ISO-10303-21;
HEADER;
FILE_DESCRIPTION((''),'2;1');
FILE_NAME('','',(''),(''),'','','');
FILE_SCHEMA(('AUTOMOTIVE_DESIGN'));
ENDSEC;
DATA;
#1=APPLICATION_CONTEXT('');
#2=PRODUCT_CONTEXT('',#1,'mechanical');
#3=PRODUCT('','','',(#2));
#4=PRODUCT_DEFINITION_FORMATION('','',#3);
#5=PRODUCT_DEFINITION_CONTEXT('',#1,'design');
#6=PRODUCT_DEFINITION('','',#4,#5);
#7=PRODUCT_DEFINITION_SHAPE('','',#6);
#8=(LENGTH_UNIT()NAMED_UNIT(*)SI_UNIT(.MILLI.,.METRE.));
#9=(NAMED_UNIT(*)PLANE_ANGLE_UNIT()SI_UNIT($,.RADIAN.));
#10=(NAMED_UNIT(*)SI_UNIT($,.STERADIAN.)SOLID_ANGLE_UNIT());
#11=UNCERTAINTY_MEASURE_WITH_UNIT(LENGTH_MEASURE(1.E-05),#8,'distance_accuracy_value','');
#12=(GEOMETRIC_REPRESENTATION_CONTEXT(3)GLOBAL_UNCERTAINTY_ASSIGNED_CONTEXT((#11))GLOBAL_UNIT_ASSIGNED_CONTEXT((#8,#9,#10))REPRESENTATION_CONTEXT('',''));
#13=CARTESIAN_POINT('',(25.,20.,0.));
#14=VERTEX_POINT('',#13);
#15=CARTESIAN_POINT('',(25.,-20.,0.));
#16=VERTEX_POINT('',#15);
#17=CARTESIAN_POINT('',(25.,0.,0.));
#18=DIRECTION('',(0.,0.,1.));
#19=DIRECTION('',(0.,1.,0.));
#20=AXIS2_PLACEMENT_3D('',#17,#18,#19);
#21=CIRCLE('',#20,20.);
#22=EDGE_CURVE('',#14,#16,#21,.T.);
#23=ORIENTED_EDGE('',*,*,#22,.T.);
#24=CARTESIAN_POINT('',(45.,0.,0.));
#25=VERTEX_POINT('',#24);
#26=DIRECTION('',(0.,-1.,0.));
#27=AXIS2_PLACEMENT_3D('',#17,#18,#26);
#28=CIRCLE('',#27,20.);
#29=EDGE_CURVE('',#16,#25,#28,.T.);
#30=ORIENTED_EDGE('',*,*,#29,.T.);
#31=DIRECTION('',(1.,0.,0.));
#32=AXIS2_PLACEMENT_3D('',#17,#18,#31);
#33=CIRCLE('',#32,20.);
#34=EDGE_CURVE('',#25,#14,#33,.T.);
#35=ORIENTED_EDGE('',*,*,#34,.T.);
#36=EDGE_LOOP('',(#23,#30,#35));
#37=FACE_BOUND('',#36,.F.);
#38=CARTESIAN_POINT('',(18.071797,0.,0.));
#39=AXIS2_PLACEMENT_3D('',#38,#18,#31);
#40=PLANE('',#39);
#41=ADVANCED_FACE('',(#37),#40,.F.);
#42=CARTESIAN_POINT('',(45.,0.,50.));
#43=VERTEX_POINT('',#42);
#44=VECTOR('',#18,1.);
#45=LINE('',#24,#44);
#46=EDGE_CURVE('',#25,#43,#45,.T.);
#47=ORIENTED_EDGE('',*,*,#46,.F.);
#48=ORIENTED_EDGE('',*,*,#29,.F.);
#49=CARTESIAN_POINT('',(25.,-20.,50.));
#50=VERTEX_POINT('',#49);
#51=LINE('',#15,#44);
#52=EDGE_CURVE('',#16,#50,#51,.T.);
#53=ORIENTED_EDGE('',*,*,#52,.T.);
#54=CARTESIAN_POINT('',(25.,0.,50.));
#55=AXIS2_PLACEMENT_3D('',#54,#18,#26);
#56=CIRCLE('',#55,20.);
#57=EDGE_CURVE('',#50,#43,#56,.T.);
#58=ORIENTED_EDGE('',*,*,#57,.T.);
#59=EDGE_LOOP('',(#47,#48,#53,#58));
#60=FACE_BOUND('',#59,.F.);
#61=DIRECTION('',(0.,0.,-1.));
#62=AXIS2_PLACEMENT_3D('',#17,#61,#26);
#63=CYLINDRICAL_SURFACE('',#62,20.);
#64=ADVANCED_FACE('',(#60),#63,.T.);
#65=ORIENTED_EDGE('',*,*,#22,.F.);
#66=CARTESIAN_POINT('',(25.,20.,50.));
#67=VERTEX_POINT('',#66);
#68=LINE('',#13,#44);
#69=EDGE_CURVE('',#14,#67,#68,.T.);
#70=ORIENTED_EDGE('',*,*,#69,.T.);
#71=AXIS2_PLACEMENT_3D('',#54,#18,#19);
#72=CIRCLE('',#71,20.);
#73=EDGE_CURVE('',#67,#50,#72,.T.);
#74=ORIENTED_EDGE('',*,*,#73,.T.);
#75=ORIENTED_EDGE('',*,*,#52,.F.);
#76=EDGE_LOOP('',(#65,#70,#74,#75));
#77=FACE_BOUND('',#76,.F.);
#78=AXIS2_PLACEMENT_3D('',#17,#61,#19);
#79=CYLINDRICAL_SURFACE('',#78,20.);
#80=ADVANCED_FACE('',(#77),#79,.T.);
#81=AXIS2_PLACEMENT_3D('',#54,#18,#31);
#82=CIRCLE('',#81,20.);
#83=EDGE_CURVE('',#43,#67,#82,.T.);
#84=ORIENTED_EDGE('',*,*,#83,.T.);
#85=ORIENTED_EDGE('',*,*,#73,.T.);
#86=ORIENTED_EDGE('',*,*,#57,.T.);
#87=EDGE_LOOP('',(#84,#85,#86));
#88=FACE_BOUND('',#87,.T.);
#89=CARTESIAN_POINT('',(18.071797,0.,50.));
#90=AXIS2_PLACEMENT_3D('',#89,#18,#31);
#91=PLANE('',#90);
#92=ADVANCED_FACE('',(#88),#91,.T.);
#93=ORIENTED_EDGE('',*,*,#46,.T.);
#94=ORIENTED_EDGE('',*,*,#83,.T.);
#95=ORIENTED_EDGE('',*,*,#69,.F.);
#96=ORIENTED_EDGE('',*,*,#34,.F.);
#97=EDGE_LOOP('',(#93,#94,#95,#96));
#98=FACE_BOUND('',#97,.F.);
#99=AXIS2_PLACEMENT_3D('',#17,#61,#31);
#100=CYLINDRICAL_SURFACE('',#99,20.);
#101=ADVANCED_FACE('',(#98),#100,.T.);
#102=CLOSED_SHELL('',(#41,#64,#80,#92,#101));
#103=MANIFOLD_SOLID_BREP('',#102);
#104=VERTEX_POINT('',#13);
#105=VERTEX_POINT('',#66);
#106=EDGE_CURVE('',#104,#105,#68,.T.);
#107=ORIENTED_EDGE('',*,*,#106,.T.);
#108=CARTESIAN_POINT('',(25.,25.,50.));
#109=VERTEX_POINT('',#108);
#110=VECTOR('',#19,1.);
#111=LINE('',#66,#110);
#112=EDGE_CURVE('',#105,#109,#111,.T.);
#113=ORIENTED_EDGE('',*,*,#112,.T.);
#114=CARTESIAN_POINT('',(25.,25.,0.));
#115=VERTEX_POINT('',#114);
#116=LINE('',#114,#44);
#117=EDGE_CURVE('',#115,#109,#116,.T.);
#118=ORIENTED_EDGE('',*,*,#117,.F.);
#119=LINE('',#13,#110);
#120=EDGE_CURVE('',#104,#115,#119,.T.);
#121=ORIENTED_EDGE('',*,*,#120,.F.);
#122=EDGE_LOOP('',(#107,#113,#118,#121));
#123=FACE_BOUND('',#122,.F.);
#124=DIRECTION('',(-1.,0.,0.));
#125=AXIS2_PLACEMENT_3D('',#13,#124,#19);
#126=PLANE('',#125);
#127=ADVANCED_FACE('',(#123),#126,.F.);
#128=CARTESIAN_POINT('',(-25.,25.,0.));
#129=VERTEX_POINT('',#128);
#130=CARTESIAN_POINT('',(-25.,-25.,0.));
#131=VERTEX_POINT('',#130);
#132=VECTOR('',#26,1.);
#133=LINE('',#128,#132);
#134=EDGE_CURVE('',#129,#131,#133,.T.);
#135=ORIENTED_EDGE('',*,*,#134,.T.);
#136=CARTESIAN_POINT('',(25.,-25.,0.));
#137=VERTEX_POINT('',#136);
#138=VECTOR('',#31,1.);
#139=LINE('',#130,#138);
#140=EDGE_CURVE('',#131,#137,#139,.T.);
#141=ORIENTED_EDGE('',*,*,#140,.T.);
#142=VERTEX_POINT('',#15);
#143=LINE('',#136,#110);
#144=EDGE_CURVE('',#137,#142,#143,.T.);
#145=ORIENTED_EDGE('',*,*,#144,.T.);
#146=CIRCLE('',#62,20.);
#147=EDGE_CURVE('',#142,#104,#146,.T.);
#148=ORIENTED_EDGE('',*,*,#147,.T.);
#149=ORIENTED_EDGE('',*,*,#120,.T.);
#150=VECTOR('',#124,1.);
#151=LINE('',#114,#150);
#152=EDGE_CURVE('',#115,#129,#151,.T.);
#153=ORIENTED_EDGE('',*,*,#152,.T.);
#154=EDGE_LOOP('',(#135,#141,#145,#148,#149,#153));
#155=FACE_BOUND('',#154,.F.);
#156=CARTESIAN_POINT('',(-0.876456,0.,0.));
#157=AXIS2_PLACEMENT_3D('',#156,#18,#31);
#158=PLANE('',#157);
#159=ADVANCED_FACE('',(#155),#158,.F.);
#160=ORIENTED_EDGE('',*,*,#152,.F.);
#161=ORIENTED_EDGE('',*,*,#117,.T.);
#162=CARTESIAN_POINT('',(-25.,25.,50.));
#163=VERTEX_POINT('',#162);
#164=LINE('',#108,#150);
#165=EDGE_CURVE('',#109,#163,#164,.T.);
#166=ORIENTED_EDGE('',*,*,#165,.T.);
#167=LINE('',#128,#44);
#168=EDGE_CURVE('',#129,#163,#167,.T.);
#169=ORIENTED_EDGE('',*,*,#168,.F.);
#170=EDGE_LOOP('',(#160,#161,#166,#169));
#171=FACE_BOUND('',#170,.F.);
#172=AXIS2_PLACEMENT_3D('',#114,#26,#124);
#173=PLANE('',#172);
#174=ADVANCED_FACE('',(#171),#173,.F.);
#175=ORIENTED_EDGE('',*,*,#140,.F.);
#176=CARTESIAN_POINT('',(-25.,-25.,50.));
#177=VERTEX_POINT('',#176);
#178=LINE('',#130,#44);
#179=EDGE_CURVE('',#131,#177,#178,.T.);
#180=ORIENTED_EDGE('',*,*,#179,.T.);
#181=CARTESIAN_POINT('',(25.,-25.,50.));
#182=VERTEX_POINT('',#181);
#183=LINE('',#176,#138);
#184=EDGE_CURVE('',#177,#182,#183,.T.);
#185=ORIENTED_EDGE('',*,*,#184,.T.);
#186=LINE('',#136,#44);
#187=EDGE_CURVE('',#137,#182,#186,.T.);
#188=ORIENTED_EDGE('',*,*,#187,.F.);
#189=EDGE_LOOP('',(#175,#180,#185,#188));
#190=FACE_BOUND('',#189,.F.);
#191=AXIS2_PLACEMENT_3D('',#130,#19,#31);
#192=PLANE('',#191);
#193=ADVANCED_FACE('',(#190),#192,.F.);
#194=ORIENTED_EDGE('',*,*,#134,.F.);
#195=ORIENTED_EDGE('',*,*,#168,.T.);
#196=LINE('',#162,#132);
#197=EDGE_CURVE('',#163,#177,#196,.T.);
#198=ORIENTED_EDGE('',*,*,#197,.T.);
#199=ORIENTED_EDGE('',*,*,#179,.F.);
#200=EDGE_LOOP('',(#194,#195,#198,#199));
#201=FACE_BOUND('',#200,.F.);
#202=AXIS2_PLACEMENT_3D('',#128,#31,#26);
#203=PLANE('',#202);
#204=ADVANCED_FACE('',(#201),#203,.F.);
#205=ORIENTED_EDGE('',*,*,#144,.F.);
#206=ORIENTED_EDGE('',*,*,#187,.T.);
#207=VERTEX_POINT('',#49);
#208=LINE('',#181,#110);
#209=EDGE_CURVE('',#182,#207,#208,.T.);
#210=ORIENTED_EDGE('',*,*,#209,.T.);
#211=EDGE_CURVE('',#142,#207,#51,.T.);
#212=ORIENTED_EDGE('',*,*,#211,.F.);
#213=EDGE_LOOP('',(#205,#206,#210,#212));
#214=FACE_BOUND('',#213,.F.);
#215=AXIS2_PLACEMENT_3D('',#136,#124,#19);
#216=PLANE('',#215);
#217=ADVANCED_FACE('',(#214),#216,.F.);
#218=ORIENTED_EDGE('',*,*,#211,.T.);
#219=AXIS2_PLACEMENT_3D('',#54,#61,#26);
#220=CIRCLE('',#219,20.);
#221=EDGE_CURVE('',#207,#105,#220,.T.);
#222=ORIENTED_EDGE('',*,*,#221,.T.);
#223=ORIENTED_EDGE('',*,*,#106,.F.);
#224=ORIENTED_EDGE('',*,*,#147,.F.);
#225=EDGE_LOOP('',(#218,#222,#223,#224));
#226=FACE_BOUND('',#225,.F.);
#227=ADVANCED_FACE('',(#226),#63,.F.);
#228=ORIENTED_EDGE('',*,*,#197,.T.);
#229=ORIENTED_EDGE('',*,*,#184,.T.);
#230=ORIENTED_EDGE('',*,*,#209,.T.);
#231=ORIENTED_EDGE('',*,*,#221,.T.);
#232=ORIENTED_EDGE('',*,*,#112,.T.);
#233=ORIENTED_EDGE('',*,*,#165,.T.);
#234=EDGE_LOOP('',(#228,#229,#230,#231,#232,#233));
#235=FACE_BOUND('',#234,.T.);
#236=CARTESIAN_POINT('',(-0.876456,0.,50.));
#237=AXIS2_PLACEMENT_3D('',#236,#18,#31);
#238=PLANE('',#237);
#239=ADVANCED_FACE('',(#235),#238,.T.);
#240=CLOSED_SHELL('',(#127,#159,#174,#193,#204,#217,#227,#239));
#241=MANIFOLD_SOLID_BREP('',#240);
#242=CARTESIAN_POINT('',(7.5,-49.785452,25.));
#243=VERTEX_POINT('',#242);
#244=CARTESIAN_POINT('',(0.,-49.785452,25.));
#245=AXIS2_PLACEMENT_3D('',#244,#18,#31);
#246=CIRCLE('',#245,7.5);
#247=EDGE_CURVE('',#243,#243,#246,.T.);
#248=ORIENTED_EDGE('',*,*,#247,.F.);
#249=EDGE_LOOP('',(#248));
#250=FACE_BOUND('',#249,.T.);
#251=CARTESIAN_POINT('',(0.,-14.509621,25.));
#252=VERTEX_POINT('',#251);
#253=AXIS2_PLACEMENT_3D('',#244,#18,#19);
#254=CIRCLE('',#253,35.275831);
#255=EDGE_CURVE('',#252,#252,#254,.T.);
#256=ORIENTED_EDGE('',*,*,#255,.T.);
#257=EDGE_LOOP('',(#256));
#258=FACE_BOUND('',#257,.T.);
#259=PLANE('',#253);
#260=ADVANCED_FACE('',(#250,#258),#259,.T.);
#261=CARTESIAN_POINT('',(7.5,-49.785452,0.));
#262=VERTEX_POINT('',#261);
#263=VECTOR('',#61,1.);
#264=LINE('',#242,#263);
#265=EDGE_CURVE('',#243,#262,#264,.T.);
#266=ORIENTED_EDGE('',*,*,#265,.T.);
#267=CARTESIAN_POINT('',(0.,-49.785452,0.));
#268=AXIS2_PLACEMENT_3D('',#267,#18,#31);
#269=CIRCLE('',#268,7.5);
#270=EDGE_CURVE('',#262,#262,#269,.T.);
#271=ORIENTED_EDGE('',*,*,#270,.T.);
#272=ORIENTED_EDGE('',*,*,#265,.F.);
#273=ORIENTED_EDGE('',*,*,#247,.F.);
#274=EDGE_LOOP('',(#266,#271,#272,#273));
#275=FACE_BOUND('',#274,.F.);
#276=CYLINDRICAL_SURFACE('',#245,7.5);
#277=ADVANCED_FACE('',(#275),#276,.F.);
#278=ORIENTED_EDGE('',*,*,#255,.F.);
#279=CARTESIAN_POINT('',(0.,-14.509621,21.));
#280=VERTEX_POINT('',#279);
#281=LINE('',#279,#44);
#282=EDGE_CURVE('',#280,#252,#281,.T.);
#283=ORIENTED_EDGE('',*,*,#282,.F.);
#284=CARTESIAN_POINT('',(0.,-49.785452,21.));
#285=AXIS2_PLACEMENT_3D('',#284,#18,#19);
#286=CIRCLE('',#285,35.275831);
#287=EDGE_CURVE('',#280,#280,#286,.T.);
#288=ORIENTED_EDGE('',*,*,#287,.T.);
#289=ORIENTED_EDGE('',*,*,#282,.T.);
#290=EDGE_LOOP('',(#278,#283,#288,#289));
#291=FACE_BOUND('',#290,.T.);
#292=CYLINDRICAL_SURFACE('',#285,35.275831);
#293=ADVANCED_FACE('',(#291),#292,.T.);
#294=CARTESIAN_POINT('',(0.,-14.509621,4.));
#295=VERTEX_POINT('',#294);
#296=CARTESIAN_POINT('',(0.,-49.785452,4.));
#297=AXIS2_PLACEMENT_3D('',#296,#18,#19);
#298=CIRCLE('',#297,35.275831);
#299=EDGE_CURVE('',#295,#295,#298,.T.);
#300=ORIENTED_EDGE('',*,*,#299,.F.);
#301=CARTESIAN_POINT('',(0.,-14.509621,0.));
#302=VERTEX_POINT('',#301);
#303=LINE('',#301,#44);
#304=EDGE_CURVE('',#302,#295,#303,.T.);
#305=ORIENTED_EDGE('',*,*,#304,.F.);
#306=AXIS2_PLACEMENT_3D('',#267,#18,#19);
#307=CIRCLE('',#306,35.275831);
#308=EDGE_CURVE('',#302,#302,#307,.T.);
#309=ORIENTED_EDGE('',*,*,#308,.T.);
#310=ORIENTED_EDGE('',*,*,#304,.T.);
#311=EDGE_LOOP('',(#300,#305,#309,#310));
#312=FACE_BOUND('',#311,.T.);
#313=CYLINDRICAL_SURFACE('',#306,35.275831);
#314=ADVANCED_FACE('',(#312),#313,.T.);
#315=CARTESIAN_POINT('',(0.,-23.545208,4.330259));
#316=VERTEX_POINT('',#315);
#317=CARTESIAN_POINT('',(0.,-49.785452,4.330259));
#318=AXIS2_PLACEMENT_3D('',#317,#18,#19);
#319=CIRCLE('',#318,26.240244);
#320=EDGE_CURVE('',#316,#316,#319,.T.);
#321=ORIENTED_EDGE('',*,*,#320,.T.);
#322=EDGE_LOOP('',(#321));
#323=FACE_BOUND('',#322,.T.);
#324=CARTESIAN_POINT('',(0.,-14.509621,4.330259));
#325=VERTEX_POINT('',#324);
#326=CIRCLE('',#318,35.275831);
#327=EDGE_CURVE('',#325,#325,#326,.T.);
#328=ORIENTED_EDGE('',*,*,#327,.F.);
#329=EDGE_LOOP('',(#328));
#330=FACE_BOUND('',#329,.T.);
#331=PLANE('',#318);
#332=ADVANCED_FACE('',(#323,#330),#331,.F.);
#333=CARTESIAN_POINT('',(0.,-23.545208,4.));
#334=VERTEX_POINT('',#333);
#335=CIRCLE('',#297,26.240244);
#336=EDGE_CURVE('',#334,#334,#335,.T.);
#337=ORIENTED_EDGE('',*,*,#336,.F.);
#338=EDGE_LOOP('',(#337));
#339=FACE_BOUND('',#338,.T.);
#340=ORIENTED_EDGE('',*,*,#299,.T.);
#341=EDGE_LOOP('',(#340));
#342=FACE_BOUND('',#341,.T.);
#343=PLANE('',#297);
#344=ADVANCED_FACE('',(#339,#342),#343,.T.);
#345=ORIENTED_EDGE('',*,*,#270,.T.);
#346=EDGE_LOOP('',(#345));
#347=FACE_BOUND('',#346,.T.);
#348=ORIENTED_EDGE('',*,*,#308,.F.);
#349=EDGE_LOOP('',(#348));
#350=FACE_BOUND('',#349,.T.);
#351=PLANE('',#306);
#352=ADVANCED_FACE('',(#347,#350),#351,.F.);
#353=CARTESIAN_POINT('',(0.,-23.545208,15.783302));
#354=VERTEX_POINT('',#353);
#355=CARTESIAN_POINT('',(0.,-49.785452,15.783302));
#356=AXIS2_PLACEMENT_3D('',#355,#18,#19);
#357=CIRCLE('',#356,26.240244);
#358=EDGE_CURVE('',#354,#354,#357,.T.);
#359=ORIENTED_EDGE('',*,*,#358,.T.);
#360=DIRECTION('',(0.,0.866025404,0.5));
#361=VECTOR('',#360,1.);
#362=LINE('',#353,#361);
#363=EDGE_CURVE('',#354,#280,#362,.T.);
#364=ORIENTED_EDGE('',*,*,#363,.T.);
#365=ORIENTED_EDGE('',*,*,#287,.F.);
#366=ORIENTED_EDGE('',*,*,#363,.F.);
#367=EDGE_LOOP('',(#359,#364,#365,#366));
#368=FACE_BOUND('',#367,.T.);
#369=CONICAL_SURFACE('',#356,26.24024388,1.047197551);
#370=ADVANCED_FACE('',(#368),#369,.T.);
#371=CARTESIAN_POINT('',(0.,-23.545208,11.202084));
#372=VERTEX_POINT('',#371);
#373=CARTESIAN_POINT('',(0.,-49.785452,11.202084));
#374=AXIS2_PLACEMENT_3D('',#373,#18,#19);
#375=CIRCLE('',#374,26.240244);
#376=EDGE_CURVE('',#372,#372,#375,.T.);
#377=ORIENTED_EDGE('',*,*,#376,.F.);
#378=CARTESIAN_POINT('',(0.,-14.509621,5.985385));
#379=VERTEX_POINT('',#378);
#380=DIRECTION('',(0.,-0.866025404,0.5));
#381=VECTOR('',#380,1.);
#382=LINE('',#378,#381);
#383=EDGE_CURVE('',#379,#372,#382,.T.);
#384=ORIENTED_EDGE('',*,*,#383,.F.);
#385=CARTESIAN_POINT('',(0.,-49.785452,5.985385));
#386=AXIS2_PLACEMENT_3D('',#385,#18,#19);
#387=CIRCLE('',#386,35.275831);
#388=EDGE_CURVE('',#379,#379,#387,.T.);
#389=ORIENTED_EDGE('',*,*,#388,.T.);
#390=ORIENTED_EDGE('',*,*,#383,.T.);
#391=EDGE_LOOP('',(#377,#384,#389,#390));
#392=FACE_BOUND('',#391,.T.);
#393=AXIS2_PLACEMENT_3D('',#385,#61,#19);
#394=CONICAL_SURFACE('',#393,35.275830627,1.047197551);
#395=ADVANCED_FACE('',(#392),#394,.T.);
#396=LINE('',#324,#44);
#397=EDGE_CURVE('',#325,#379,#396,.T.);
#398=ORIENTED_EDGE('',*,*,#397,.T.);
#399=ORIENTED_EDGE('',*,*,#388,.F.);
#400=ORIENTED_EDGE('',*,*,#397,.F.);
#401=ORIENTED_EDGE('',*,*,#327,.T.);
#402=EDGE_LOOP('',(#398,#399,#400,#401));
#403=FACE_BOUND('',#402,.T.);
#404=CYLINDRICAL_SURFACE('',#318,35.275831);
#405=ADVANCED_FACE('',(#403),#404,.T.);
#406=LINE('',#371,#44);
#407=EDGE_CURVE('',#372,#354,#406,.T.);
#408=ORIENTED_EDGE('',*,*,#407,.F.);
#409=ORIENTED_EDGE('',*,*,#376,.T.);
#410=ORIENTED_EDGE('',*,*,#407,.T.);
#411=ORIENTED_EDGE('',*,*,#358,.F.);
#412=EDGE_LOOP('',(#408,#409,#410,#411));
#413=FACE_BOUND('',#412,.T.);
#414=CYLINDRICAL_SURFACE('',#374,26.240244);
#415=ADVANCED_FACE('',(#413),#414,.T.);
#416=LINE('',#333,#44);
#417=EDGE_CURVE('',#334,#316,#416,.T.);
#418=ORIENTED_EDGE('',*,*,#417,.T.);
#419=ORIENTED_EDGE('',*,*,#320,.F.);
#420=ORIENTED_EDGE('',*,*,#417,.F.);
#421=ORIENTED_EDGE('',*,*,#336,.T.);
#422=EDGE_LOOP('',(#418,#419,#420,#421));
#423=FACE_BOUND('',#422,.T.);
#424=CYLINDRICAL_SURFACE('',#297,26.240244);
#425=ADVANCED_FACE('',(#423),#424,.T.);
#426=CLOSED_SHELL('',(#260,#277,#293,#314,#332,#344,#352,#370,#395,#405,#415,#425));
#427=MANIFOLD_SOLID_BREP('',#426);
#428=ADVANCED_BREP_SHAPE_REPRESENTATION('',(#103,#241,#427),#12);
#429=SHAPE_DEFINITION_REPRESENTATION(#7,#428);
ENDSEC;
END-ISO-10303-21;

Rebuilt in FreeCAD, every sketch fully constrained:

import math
import FreeCAD as App
import Part
import Sketcher

V = App.Vector
Q = App.Units.Quantity


def add_polygon(sketch, points):
    """Adds a closed chain of lines whose ends are joined by coincident constraints."""
    first, n = sketch.GeometryCount, len(points)
    for a, b in zip(points, points[1:] + points[:1]):
        sketch.addGeometry(Part.LineSegment(App.Vector(*a, 0), App.Vector(*b, 0)), False)
    for i in range(n):
        sketch.addConstraint(Sketcher.Constraint("Coincident", first + i, 2, first + (i + 1) % n, 1))

doc = App.newDocument("Part")
body = doc.addObject("PartDesign::Body", "Body")

# Sketch on XY plane
sketch1 = body.newObject("Sketcher::SketchObject", "Sketch")
sketch1.AttachmentSupport = (doc.getObject("XY_Plane"), [""])
sketch1.MapMode = "FlatFace"
sketch1.addGeometry([
    Part.LineSegment(V(25, 25, 0), V(-25, 25, 0)),  # 0
    Part.LineSegment(V(-25, 25, 0), V(-25, -25, 0)),  # 1
    Part.LineSegment(V(-25, -25, 0), V(25, -25, 0)),  # 2
    Part.LineSegment(V(25, -25, 0), V(25, -20, 0)),  # 3
    Part.ArcOfCircle(Part.Circle(V(25, 0, 0), V(0, 0, 1), 20), math.radians(90), math.radians(270)),  # 4
    Part.LineSegment(V(25, 20, 0), V(25, 25, 0)),  # 5
], False)
sketch1.addConstraint([
    Sketcher.Constraint("Coincident", 0, 2, 1, 1),
    Sketcher.Constraint("Coincident", 1, 2, 2, 1),
    Sketcher.Constraint("Coincident", 2, 2, 3, 1),
    Sketcher.Constraint("Coincident", 3, 2, 4, 2),
    Sketcher.Constraint("Coincident", 4, 1, 5, 1),
    Sketcher.Constraint("Coincident", 5, 2, 0, 1),
    Sketcher.Constraint("Horizontal", 0),
    Sketcher.Constraint("Vertical", 1),
    Sketcher.Constraint("Horizontal", 2),
    Sketcher.Constraint("Vertical", 3),
    Sketcher.Constraint("Vertical", 5),
    Sketcher.Constraint("Symmetric", 0, 2, 2, 2, -1, 1),
    Sketcher.Constraint("Symmetric", 3, 2, 4, 1, -1),
    Sketcher.Constraint("Vertical", 4, 3, 2, 2),
    Sketcher.Constraint("Equal", 2, 1),
    Sketcher.Constraint("Radius", 4, 20.0),
    Sketcher.Constraint("DistanceX", 0, 2, 0, 1, 50.0),
])
pad1 = body.newObject("PartDesign::Pad", "Pad")
pad1.Profile = sketch1
pad1.Length = 50
body2 = doc.addObject("PartDesign::Body", "Body001")

# Sketch on XY plane
sketch2 = body2.newObject("Sketcher::SketchObject", "Sketch001")
sketch2.AttachmentSupport = (doc.getObject("XY_Plane001"), [""])
sketch2.MapMode = "FlatFace"
sketch2.addGeometry([
    Part.ArcOfCircle(Part.Circle(V(25, 0, 0), V(0, 0, 1), 20), math.radians(90), math.radians(270)),
    Part.ArcOfCircle(Part.Circle(V(25, 0, 0), V(0, 0, 1), 20), math.radians(-90), math.radians(0)),
    Part.ArcOfCircle(Part.Circle(V(25, 0, 0), V(0, 0, 1), 20), math.radians(0), math.radians(90)),
], False)
sketch2.addConstraint([
    Sketcher.Constraint("Tangent", 0, 2, 1, 1),
    Sketcher.Constraint("Tangent", 1, 2, 2, 1),
    Sketcher.Constraint("Tangent", 2, 2, 0, 1),
    Sketcher.Constraint("Symmetric", 0, 2, 2, 2, -1),
    Sketcher.Constraint("PointOnObject", 1, 2, -1),
    Sketcher.Constraint("Vertical", 2, 3, 0, 2),
    Sketcher.Constraint("Radius", 0, 20.0),
    Sketcher.Constraint("DistanceX", -1, 1, 0, 3, 25.0),
])
pad2 = body2.newObject("PartDesign::Pad", "Pad001")
pad2.Profile = sketch2
pad2.Length = 50
body3 = doc.addObject("PartDesign::Body", "Body002")

# Sketch on YZ plane
sketch3 = body3.newObject("Sketcher::SketchObject", "Sketch002")
sketch3.AttachmentSupport = (doc.getObject("YZ_Plane002"), [""])
sketch3.MapMode = "FlatFace"
add_polygon(sketch3, [(-49.79, 0), (-14.51, 0), (-14.51, 4), (-23.55, 4), (-23.55, 4.33), (-14.51, 4.33), (-14.51, 5.99), (-23.55, 11.2), (-23.55, 15.78), (-14.51, 21), (-14.51, 25), (-49.79, 25)])  # lines 0-11
sketch3.addGeometry(Part.LineSegment(V(-49.79, 0, 0), V(-49.79, 25, 0)), True)  # axis
sketch3.addConstraint([
    Sketcher.Constraint("Horizontal", 0),
    Sketcher.Constraint("Vertical", 1),
    Sketcher.Constraint("Horizontal", 2),
    Sketcher.Constraint("Vertical", 3),
    Sketcher.Constraint("Horizontal", 4),
    Sketcher.Constraint("Vertical", 5),
    Sketcher.Constraint("Vertical", 7),
    Sketcher.Constraint("Vertical", 9),
    Sketcher.Constraint("Horizontal", 10),
    Sketcher.Constraint("Vertical", 11),
    Sketcher.Constraint("Vertical", 12),
    Sketcher.Constraint("Coincident", 12, 1, 11, 2),
    Sketcher.Constraint("PointOnObject", 0, 2, -1),
    Sketcher.Constraint("Horizontal", 9, 2, 12, 2),
    Sketcher.Constraint("Vertical", 1, 2, 4, 2),
    Sketcher.Constraint("Vertical", 3, 2, 6, 2),
    Sketcher.Constraint("Vertical", 5, 2, 8, 2),
    Sketcher.Constraint("Equal", 1, 9),
    Sketcher.Constraint("Equal", 6, 8),
    Sketcher.Constraint("DistanceY", 1, 1, 1, 2, 4.0),
    Sketcher.Constraint("DistanceY", 11, 2, 11, 1, 25.0),
    Sketcher.Constraint("Angle", 6, Q("150 deg")),
    Sketcher.Constraint("DistanceX", 0, 1, 0, 2, 35.275831),
    Sketcher.Constraint("DistanceY", 3, 1, 3, 2, 0.330259),
    Sketcher.Constraint("DistanceY", -1, 1, 7, 2, 15.783302),
    Sketcher.Constraint("DistanceY", 5, 1, 5, 2, 1.655126),
    Sketcher.Constraint("DistanceX", 0, 2, -1, 1, 14.509621),
])
revolution = body3.newObject("PartDesign::Revolution", "Revolution")
revolution.Profile = sketch3
revolution.ReferenceAxis = (sketch3, ["Axis0"])
revolution.Angle = 360

# Sketch on XY plane
sketch4 = body3.newObject("Sketcher::SketchObject", "Sketch003")
sketch4.AttachmentSupport = (doc.getObject("XY_Plane002"), [""])
sketch4.MapMode = "FlatFace"
sketch4.AttachmentOffset = App.Placement(V(0, 0, 25), App.Rotation())
sketch4.addGeometry(Part.Circle(V(0, -50, 0), V(0, 0, 1), 8), False)
sketch4.addConstraint([
    Sketcher.Constraint("PointOnObject", 0, 3, -2),
    Sketcher.Constraint("Diameter", 0, 15.0),
    Sketcher.Constraint("DistanceY", 0, 3, -1, 1, 49.785452),
])
pocket1 = body3.newObject("PartDesign::Pocket", "Pocket")
pocket1.Profile = sketch4
pocket1.Type = "ThroughAll"

doc.recompute()
